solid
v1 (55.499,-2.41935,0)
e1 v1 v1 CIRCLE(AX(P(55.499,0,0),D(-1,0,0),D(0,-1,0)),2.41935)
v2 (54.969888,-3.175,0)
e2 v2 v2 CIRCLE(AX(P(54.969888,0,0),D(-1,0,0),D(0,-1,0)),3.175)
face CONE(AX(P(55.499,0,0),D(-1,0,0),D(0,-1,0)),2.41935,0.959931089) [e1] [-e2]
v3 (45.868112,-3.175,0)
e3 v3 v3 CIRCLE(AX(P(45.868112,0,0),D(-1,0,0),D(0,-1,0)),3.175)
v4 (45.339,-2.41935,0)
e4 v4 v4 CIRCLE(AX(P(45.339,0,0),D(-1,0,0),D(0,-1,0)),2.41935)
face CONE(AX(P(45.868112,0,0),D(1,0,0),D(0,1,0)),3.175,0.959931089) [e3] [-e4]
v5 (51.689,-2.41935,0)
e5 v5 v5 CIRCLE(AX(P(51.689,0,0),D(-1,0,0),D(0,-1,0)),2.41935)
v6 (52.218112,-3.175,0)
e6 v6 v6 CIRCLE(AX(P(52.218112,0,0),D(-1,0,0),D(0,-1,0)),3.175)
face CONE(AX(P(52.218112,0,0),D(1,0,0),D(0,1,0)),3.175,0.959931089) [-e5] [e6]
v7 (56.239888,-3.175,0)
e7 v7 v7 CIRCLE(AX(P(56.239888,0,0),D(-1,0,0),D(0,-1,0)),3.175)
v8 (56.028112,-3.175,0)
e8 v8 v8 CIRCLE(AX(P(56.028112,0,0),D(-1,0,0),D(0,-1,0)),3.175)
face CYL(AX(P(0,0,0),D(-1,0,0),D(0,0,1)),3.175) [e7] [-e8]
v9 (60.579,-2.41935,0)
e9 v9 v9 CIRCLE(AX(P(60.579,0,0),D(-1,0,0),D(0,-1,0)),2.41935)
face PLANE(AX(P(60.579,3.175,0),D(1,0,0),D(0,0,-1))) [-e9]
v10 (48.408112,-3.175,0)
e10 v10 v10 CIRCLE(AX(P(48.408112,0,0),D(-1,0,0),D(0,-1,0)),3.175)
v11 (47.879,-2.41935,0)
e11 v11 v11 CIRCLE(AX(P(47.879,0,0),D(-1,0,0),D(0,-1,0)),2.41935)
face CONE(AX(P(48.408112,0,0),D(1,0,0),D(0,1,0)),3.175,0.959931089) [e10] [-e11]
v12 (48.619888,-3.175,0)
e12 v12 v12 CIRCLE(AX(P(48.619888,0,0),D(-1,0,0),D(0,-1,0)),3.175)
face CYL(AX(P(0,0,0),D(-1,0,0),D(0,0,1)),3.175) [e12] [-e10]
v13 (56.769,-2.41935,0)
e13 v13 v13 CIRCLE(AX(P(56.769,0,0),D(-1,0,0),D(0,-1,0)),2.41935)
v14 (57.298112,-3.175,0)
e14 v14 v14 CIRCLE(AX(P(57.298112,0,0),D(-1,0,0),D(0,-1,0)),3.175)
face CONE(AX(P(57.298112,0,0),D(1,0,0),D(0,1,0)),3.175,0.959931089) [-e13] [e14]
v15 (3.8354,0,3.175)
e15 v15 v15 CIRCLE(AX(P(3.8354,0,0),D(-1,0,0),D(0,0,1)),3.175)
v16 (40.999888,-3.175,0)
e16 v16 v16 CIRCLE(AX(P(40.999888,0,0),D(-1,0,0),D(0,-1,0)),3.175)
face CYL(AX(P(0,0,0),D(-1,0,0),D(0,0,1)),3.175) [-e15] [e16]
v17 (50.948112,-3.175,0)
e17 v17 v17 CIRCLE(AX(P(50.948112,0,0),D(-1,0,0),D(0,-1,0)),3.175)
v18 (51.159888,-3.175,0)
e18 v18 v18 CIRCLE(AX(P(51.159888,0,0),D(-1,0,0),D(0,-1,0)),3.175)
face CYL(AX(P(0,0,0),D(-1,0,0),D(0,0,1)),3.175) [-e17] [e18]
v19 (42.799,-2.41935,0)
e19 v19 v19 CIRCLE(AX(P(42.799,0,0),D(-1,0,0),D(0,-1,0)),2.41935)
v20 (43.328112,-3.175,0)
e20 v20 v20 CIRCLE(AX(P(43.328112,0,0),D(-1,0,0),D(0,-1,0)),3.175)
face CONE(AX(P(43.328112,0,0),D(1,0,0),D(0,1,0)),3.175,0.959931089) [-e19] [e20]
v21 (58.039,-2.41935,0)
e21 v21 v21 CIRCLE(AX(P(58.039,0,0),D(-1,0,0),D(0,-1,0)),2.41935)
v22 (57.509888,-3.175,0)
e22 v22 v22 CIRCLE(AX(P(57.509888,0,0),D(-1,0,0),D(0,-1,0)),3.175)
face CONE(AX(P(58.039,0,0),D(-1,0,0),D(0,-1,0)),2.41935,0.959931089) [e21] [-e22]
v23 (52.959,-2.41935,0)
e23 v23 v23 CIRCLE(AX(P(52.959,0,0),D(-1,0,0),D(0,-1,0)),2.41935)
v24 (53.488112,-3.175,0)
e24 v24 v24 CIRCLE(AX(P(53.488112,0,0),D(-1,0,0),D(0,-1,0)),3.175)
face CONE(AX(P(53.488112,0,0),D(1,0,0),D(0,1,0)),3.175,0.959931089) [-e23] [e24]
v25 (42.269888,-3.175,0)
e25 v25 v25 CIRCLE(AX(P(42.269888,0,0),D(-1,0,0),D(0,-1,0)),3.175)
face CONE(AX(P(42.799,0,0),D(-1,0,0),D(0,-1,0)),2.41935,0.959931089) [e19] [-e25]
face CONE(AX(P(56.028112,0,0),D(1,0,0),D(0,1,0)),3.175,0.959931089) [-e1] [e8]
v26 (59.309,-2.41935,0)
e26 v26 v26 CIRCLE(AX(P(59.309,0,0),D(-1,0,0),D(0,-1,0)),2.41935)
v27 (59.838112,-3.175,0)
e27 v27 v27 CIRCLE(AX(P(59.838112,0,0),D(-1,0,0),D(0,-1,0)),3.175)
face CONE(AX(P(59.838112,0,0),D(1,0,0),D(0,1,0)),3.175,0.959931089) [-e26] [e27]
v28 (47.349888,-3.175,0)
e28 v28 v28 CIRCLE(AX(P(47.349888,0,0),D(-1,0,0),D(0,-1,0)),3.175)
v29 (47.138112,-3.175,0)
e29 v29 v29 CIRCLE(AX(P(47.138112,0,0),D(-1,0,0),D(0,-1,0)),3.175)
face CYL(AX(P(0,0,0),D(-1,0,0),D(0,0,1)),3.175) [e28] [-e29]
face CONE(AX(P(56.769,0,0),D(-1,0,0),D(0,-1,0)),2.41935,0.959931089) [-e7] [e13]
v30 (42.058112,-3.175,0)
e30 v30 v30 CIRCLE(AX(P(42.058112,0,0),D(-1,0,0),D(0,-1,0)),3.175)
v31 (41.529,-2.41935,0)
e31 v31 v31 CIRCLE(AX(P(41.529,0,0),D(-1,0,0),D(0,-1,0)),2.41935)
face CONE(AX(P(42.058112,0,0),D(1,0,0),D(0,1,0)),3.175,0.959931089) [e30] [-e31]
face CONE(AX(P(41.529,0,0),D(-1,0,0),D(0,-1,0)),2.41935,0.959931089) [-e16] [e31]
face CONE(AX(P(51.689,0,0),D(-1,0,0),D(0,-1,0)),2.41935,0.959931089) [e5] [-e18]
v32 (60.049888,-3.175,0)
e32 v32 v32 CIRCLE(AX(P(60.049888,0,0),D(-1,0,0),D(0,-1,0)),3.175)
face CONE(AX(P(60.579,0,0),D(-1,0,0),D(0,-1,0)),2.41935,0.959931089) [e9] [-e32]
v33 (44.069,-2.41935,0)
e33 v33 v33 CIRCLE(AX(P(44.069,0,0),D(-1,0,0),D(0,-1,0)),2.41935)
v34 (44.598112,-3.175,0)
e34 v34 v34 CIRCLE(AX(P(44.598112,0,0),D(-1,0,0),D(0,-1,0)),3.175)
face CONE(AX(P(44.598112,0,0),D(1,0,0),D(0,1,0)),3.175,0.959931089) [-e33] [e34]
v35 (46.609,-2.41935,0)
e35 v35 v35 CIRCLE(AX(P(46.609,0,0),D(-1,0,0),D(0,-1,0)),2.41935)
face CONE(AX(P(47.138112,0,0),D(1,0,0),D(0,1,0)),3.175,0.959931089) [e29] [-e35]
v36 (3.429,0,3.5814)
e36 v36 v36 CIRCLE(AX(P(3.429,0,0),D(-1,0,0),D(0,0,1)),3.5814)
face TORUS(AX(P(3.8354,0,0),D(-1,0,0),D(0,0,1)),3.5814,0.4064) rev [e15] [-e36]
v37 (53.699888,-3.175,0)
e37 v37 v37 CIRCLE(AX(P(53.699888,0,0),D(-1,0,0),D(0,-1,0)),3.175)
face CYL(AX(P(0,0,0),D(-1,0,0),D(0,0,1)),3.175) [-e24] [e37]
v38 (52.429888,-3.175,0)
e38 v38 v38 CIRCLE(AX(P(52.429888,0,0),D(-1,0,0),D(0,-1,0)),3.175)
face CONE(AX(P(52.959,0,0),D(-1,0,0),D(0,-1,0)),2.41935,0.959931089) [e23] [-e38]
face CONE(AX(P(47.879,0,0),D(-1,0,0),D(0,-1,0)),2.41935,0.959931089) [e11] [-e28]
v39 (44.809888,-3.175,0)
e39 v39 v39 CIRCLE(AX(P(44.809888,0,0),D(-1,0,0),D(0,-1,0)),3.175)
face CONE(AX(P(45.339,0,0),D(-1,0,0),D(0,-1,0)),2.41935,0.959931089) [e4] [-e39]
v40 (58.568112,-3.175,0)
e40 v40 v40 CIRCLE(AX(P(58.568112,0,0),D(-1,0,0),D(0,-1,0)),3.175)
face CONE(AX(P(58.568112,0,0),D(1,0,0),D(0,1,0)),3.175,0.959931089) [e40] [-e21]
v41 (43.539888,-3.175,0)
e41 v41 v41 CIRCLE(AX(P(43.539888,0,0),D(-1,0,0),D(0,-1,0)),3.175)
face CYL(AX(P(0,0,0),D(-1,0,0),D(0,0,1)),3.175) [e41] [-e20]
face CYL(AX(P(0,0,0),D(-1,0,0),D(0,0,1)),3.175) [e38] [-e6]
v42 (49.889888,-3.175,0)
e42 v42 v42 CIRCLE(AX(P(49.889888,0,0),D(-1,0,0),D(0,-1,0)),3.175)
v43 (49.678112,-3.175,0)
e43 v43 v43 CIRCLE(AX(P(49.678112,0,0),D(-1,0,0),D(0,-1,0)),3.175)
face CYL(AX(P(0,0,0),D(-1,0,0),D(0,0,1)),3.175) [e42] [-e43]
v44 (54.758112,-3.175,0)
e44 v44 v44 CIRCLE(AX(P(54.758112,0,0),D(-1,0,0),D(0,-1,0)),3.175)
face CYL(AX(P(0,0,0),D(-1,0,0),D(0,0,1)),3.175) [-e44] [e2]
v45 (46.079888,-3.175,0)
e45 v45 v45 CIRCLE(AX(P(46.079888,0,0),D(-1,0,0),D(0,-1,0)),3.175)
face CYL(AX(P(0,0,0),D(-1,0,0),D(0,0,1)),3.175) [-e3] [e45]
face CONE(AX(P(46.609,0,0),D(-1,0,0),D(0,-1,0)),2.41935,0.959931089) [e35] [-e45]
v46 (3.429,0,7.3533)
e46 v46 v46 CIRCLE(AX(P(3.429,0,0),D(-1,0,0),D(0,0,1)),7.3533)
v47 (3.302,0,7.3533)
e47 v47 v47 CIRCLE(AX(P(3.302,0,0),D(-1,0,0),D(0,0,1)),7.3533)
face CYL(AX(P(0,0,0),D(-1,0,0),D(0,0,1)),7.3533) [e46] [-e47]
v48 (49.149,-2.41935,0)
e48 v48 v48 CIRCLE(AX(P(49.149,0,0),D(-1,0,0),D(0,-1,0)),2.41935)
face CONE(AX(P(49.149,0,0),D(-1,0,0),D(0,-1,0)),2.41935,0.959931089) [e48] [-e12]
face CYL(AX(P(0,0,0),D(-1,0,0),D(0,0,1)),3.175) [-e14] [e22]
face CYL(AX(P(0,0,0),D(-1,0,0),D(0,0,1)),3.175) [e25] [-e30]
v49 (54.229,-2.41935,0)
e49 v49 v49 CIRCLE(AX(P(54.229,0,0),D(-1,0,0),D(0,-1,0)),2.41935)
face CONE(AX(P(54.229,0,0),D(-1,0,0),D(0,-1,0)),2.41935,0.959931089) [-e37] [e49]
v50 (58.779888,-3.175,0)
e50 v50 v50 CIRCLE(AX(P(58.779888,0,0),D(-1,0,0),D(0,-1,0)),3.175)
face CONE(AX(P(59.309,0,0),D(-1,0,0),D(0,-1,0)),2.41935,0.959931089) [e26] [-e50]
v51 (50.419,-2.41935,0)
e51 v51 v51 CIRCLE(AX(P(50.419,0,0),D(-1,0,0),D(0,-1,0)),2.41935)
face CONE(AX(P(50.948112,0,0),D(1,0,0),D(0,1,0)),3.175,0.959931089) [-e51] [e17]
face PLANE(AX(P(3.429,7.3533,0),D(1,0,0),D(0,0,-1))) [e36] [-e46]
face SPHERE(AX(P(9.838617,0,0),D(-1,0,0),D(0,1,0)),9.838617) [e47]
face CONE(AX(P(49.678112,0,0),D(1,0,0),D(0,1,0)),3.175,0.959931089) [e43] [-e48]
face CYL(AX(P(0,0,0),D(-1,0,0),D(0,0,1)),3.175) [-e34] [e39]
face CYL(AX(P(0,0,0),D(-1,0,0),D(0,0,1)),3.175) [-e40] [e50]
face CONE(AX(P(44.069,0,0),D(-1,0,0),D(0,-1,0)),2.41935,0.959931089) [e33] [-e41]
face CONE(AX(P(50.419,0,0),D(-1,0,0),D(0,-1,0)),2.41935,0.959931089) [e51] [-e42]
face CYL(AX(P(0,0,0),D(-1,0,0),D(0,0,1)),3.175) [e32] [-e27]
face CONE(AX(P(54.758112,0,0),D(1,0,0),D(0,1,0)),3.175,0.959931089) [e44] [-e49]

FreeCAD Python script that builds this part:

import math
import FreeCAD as App
import Part
import Sketcher

V = App.Vector
Q = App.Units.Quantity


def add_polygon(sketch, points):
    """Adds a closed chain of lines whose ends are joined by coincident constraints."""
    first, n = sketch.GeometryCount, len(points)
    for a, b in zip(points, points[1:] + points[:1]):
        sketch.addGeometry(Part.LineSegment(App.Vector(*a, 0), App.Vector(*b, 0)), False)
    for i in range(n):
        sketch.addConstraint(Sketcher.Constraint("Coincident", first + i, 2, first + (i + 1) % n, 1))

doc = App.newDocument("Part")
body = doc.addObject("PartDesign::Body", "Body")

# Sketch on XY plane
sketch1 = body.newObject("Sketcher::SketchObject", "Sketch")
sketch1.AttachmentSupport = (doc.getObject("XY_Plane"), [""])
sketch1.MapMode = "FlatFace"
sketch1.addGeometry(Part.LineSegment(V(0, 0, 0), V(60.58, 0, 0)), False)
sketch1.addGeometry(Part.LineSegment(V(60.58, 0, 0), V(60.58, 3.17, 0)), False)
sketch1.addGeometry(Part.LineSegment(V(60.58, 3.17, 0), V(3.84, 3.17, 0)), False)
sketch1.addGeometry(Part.ArcOfCircle(Part.Circle(V(3.84, 3.58, 0), V(0, 0, 1), 0.41), math.radians(180), math.radians(270)), False)
sketch1.addGeometry(Part.LineSegment(V(3.43, 3.58, 0), V(3.43, 7.35, 0)), False)
sketch1.addGeometry(Part.LineSegment(V(3.43, 7.35, 0), V(3.3, 7.35, 0)), False)
sketch1.addGeometry(Part.ArcOfCircle(Part.Circle(V(9.84, 0, 0), V(0, 0, 1), 9.84), math.radians(132), math.radians(180)), False)
sketch1.addConstraint(Sketcher.Constraint("Coincident", 0, 2, 1, 1))
sketch1.addConstraint(Sketcher.Constraint("Coincident", 1, 2, 2, 1))
sketch1.addConstraint(Sketcher.Constraint("Tangent", 2, 2, 3, 2))
sketch1.addConstraint(Sketcher.Constraint("Tangent", 3, 1, 4, 1))
sketch1.addConstraint(Sketcher.Constraint("Coincident", 4, 2, 5, 1))
sketch1.addConstraint(Sketcher.Constraint("Coincident", 5, 2, 6, 1))
sketch1.addConstraint(Sketcher.Constraint("Coincident", 6, 2, 0, 1))
sketch1.addConstraint(Sketcher.Constraint("Horizontal", 0))
sketch1.addConstraint(Sketcher.Constraint("Vertical", 1))
sketch1.addConstraint(Sketcher.Constraint("Horizontal", 2))
sketch1.addConstraint(Sketcher.Constraint("Vertical", 4))
sketch1.addConstraint(Sketcher.Constraint("Horizontal", 5))
sketch1.addConstraint(Sketcher.Constraint("Coincident", 6, 2, -1, 1))
sketch1.addConstraint(Sketcher.Constraint("PointOnObject", 6, 3, -1))
sketch1.addConstraint(Sketcher.Constraint("Radius", 3, Q("0.016 in")))
sketch1.addConstraint(Sketcher.Constraint("DistanceX", 0, 1, 0, 2, Q("2.385 in")))
sketch1.addConstraint(Sketcher.Constraint("DistanceX", 2, 2, 2, 1, Q("2.234 in")))
sketch1.addConstraint(Sketcher.Constraint("DistanceX", 5, 2, 5, 1, Q("0.005 in")))
sketch1.addConstraint(Sketcher.Constraint("DistanceY", 1, 1, 1, 2, Q("0.125 in")))
sketch1.addConstraint(Sketcher.Constraint("DistanceY", 4, 1, 4, 2, Q("0.1485 in")))
revolution = body.newObject("PartDesign::Revolution", "Revolution")
revolution.Profile = sketch1
revolution.ReferenceAxis = (sketch1, ["H_Axis"])
revolution.Angle = 360

# Sketch on XY plane
sketch2 = body.newObject("Sketcher::SketchObject", "Sketch001")
sketch2.AttachmentSupport = (doc.getObject("XY_Plane"), [""])
sketch2.MapMode = "FlatFace"
add_polygon(sketch2, [(41.5, -2.4), (41, -3.2), (41, -4), (42.1, -4), (42.1, -3.2)])  # lines 0-4
sketch2.addConstraint(Sketcher.Constraint("Vertical", 1))
sketch2.addConstraint(Sketcher.Constraint("Horizontal", 2))
sketch2.addConstraint(Sketcher.Constraint("Vertical", 3))
sketch2.addConstraint(Sketcher.Constraint("Horizontal", 0, 2, 3, 2))
sketch2.addConstraint(Sketcher.Constraint("Equal", 0, 4))
sketch2.addConstraint(Sketcher.Constraint("Angle", 0, Q("-125 deg")))
sketch2.addConstraint(Sketcher.Constraint("DistanceY", 1, 2, 1, 1, Q("0.03125 in")))
sketch2.addConstraint(Sketcher.Constraint("DistanceY", 0, 2, -1, 1, Q("0.125 in")))
sketch2.addConstraint(Sketcher.Constraint("DistanceX", -1, 1, 4, 2, Q("1.635 in")))
sketch2.addConstraint(Sketcher.Constraint("DistanceY", 2, 2, 4, 2, Q("0.061 in")))
groove = body.newObject("PartDesign::Groove", "Groove")
groove.Profile = sketch2
groove.ReferenceAxis = (sketch2, ["H_Axis"])
groove.Angle = 360
doc.recompute()

linearpattern = body.newObject("PartDesign::LinearPattern", "LinearPattern")
linearpattern.Originals = [groove]
linearpattern.Direction = (doc.getObject("X_Axis"), [""])
linearpattern.Mode = "offset"
linearpattern.Offset = Q("0.05 in")
linearpattern.Occurrences = 16
body.Tip = linearpattern

doc.recompute()
